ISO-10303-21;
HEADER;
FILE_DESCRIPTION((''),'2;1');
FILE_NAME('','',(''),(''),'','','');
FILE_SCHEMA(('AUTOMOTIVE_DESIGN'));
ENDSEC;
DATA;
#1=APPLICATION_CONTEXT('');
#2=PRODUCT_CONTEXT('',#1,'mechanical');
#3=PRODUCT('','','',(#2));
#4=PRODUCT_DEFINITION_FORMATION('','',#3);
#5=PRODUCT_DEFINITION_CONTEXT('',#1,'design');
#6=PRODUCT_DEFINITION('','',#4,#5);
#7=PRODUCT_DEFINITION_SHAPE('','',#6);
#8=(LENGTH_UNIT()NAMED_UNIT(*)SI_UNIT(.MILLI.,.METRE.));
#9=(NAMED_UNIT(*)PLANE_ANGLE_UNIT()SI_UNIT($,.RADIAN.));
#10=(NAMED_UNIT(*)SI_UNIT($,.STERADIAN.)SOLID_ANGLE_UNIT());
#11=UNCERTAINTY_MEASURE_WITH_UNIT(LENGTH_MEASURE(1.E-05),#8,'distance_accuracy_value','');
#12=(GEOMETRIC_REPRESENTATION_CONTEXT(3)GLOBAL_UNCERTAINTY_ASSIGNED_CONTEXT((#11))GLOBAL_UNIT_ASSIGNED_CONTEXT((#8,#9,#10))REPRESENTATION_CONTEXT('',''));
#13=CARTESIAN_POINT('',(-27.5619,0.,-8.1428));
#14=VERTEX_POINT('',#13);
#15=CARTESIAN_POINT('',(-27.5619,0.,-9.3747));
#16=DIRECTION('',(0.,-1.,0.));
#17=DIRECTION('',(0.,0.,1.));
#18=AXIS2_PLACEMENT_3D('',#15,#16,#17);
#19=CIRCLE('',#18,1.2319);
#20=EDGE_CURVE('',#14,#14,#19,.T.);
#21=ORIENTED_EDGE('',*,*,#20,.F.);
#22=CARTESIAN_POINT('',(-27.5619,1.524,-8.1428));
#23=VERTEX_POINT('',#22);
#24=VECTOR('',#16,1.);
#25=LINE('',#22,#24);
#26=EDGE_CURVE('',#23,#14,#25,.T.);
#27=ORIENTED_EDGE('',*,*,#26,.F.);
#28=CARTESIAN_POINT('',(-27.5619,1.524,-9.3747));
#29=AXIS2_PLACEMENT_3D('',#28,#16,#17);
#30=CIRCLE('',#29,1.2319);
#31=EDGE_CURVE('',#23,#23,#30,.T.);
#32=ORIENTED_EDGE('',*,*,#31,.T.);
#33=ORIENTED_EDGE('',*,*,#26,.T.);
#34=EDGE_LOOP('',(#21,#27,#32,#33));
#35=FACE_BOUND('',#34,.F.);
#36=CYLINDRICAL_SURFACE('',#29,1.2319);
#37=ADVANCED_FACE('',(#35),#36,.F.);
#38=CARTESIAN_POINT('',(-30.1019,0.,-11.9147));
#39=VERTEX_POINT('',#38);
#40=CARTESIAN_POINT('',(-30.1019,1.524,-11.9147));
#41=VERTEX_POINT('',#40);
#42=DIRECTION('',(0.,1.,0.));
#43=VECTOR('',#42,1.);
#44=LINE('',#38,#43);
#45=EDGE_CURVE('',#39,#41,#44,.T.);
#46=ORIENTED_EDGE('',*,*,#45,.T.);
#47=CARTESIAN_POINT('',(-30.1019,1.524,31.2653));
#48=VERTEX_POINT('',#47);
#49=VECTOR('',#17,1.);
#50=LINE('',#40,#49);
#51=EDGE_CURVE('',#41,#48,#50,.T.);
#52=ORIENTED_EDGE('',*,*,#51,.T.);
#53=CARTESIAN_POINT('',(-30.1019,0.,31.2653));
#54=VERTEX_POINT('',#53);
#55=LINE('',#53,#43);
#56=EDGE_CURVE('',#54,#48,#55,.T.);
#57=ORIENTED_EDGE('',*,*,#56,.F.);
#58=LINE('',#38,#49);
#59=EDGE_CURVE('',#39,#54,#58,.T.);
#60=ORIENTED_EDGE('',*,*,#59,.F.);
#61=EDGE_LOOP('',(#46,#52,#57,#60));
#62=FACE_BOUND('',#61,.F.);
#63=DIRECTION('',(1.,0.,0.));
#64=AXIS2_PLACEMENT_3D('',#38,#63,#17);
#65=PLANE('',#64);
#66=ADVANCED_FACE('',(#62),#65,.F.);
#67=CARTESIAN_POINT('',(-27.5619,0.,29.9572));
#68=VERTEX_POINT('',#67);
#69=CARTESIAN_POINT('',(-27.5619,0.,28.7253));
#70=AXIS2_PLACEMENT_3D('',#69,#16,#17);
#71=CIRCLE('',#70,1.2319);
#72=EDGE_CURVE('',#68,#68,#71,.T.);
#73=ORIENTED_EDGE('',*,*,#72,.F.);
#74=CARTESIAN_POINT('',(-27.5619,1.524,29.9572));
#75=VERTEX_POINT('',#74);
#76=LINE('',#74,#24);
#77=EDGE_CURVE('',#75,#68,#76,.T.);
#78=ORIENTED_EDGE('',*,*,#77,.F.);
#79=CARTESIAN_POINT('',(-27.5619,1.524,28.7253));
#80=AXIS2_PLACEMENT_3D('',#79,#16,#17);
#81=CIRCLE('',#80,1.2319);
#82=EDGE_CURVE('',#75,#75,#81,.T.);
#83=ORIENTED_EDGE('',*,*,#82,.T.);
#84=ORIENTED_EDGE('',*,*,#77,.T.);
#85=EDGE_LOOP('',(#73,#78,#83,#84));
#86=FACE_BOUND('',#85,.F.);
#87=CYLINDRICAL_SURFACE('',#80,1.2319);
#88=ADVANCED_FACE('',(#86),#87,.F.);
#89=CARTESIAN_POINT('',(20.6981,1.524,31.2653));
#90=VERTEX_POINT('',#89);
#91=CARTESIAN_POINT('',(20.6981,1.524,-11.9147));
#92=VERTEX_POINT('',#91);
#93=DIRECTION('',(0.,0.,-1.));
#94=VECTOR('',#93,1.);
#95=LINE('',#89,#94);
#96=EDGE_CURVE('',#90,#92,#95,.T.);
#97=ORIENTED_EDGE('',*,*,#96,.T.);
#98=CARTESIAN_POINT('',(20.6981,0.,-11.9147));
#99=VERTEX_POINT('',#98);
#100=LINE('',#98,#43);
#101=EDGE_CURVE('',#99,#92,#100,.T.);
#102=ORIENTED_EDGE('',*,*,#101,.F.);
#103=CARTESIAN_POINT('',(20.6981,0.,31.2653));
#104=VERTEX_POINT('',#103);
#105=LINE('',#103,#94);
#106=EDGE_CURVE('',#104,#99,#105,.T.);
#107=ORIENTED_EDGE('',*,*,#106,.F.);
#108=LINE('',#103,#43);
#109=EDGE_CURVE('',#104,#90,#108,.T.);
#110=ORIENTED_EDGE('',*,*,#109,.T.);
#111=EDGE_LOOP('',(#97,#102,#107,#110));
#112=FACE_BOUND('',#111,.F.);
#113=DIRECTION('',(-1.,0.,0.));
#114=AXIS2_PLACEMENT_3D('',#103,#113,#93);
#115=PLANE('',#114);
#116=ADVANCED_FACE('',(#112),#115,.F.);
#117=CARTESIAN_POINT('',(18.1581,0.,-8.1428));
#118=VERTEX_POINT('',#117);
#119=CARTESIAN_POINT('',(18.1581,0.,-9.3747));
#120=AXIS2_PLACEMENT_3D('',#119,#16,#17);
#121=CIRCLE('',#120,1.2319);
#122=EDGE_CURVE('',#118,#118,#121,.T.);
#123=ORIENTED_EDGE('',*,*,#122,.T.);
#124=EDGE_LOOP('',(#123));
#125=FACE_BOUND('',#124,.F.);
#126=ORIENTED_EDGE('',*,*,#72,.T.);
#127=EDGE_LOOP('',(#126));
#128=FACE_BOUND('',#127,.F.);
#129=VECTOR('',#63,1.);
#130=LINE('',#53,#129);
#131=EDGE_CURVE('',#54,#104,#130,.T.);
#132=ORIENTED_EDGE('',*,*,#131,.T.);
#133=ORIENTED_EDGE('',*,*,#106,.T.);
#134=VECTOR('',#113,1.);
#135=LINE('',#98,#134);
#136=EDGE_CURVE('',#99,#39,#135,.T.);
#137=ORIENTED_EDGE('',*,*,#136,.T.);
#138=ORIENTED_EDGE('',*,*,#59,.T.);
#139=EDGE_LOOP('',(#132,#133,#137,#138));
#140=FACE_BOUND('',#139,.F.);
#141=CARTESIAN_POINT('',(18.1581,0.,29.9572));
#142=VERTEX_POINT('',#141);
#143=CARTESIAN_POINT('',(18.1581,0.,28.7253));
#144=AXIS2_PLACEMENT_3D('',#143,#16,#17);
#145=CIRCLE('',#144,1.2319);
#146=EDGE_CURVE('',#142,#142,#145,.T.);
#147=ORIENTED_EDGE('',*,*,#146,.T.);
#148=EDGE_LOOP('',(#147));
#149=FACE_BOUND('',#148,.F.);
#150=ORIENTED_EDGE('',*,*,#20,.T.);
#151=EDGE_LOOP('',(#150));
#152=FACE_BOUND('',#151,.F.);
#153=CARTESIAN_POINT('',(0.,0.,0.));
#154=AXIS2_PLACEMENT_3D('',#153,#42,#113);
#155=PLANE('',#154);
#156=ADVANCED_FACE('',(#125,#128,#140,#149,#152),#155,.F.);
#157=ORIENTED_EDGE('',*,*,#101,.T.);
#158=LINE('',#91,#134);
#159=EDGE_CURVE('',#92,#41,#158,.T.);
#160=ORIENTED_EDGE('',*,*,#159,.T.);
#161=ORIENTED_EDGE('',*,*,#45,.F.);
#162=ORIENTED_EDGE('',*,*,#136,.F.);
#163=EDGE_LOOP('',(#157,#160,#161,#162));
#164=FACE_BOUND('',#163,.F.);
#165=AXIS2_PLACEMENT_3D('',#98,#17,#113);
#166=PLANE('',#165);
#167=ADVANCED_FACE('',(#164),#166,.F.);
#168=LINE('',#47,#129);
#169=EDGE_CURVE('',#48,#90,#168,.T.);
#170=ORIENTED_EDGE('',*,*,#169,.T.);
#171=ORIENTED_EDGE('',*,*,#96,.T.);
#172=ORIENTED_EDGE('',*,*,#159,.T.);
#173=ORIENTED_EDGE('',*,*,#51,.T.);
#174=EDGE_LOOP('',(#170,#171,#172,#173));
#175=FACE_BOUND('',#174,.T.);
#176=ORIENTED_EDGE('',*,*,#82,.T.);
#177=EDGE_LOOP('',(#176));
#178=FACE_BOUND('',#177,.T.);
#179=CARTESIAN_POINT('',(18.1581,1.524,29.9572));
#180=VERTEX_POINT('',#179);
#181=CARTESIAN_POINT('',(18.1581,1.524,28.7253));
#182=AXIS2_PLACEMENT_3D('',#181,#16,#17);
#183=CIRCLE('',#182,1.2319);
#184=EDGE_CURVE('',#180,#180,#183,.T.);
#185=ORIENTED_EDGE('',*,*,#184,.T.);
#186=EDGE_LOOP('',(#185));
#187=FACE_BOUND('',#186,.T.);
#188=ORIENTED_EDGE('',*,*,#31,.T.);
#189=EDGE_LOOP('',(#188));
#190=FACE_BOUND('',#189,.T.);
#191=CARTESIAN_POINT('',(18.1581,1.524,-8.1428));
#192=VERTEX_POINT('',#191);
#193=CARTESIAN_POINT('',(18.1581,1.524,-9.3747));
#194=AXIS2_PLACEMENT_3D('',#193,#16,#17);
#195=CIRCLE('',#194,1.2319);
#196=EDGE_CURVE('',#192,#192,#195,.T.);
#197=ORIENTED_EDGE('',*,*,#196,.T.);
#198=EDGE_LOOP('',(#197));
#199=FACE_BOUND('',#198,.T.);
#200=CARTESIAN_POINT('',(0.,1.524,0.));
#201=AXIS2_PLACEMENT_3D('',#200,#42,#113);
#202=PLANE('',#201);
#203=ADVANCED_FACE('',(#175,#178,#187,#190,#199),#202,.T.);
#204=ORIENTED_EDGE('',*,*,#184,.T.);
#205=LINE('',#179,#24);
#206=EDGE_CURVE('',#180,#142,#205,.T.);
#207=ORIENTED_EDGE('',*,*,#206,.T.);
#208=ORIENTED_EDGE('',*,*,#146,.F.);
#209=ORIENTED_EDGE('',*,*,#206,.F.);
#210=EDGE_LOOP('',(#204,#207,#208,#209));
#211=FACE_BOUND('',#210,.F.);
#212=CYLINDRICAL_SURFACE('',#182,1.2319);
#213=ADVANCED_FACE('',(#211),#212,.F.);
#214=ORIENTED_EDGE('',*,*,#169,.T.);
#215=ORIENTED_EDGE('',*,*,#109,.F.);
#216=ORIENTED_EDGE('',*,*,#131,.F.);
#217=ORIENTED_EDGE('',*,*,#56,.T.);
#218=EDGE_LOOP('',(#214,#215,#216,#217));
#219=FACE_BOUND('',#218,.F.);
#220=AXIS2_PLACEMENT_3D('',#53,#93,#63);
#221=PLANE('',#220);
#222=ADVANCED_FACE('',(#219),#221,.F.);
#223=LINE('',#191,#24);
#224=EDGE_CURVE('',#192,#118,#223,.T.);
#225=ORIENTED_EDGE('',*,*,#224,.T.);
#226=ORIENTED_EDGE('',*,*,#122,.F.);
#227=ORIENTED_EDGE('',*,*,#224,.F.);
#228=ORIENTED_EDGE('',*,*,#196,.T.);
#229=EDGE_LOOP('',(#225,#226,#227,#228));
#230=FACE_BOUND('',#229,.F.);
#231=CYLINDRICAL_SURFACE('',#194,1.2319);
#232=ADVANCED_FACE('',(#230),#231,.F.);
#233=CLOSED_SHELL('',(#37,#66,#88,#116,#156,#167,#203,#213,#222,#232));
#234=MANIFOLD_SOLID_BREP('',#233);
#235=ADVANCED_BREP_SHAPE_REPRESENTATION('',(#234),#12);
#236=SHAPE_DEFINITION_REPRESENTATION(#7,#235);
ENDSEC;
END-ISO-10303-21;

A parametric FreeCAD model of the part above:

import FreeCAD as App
import Part
import Sketcher
Q = App.Units.Quantity

doc = App.newDocument("Part")
params = doc.addObject("Spreadsheet::Sheet", "Params")
for row, (alias, value) in enumerate([
    ("sketch1_width", "2 in"),
    ("sketch1_height", "1.7 in"),
    ("pad1_length", "0.06 in"),
    ("sketch2_diameter", "0.097 in"),
    ("hole_diameter", "0.097 in"),
], start=1):
    params.set(f"A{row}", alias)
    params.set(f"B{row}", "=" + value)
    params.setAlias(f"B{row}", alias)

body = doc.addObject("PartDesign::Body", "Body")

sketch1 = body.newObject("Sketcher::SketchObject", "Sketch")
sketch1.AttachmentSupport = (doc.getObject("XZ_Plane"), [""])
sketch1.MapMode = "FlatFace"
sketch1.addGeometry(Part.LineSegment(App.Vector(-30.1019, -11.9147, 0), App.Vector(-30.1019, 31.2653, 0)), False)
sketch1.addGeometry(Part.LineSegment(App.Vector(-30.1019, 31.2653, 0), App.Vector(20.6981, 31.2653, 0)), False)
sketch1.addGeometry(Part.LineSegment(App.Vector(20.6981, 31.2653, 0), App.Vector(20.6981, -11.9147, 0)), False)
sketch1.addGeometry(Part.LineSegment(App.Vector(20.6981, -11.9147, 0), App.Vector(-30.1019, -11.9147, 0)), False)
sketch1.addConstraint(Sketcher.Constraint("Coincident", 0, 2, 1, 1))
sketch1.addConstraint(Sketcher.Constraint("Coincident", 1, 2, 2, 1))
sketch1.addConstraint(Sketcher.Constraint("Coincident", 2, 2, 3, 1))
sketch1.addConstraint(Sketcher.Constraint("Coincident", 3, 2, 0, 1))
sketch1.addConstraint(Sketcher.Constraint("Vertical", 0))
sketch1.addConstraint(Sketcher.Constraint("Horizontal", 1))
sketch1.addConstraint(Sketcher.Constraint("Vertical", 2))
sketch1.addConstraint(Sketcher.Constraint("Horizontal", 3))
sketch1.addConstraint(Sketcher.Constraint("DistanceX", 1, 1, 1, 2, Q("2 in")))
sketch1.addConstraint(Sketcher.Constraint("DistanceY", 0, 1, 0, 2, Q("1.7 in")))
sketch1.addConstraint(Sketcher.Constraint("DistanceX", 0, 2, -1, 1, 30.102))
sketch1.addConstraint(Sketcher.Constraint("DistanceY", -1, 1, 0, 2, 31.2653))
sketch1.setExpression("Constraints[8]", "Params.sketch1_width")
sketch1.setExpression("Constraints[9]", "Params.sketch1_height")
pad1 = body.newObject("PartDesign::Pad", "Pad")
pad1.Profile = sketch1
pad1.setExpression("Length", "Params.pad1_length")
pad1.Reversed = True

sketch2 = body.newObject("Sketcher::SketchObject", "Sketch001")
sketch2.AttachmentSupport = (doc.getObject("XZ_Plane"), [""])
sketch2.MapMode = "FlatFace"
sketch2.AttachmentOffset = App.Placement(App.Vector(0, 0, -0.06 * 25.4), App.Rotation())
sketch2.addGeometry(Part.Circle(App.Vector(-27.5619, 28.7253, 0), App.Vector(0, 0, 1), 1.2319), False)
sketch2.addGeometry(Part.Circle(App.Vector(-27.5619, -9.3747, 0), App.Vector(0, 0, 1), 1.2319), False)
sketch2.addGeometry(Part.Circle(App.Vector(18.1581, -9.3747, 0), App.Vector(0, 0, 1), 1.2319), False)
sketch2.addGeometry(Part.Circle(App.Vector(18.1581, 28.7253, 0), App.Vector(0, 0, 1), 1.2319), False)
sketch2.addConstraint(Sketcher.Constraint("Equal", 0, 1))
sketch2.addConstraint(Sketcher.Constraint("Equal", 1, 2))
sketch2.addConstraint(Sketcher.Constraint("Equal", 2, 3))
sketch2.addConstraint(Sketcher.Constraint("Horizontal", 1, 3, 2, 3))
sketch2.addConstraint(Sketcher.Constraint("Horizontal", 0, 3, 3, 3))
sketch2.addConstraint(Sketcher.Constraint("Vertical", 0, 3, 1, 3))
sketch2.addConstraint(Sketcher.Constraint("Vertical", 2, 3, 3, 3))
sketch2.addConstraint(Sketcher.Constraint("Diameter", 0, Q("0.097 in")))
sketch2.addConstraint(Sketcher.Constraint("DistanceY", 1, 3, 0, 3, Q("1.5 in")))
sketch2.addConstraint(Sketcher.Constraint("DistanceX", 1, 3, 2, 3, Q("1.8 in")))
sketch2.addConstraint(Sketcher.Constraint("DistanceX", 0, 3, -1, 1, 27.562))
sketch2.addConstraint(Sketcher.Constraint("DistanceY", -1, 1, 0, 3, 28.7253))
sketch2.setExpression("Constraints[7]", "Params.sketch2_diameter")
doc.recompute()
hole = body.newObject("PartDesign::Hole", "Hole")
hole.Profile = sketch2
hole.ThreadType = "None"
hole.setExpression("Diameter", "Params.hole_diameter")
hole.DepthType = "ThroughAll"
hole.Reversed = True

doc.recompute()
